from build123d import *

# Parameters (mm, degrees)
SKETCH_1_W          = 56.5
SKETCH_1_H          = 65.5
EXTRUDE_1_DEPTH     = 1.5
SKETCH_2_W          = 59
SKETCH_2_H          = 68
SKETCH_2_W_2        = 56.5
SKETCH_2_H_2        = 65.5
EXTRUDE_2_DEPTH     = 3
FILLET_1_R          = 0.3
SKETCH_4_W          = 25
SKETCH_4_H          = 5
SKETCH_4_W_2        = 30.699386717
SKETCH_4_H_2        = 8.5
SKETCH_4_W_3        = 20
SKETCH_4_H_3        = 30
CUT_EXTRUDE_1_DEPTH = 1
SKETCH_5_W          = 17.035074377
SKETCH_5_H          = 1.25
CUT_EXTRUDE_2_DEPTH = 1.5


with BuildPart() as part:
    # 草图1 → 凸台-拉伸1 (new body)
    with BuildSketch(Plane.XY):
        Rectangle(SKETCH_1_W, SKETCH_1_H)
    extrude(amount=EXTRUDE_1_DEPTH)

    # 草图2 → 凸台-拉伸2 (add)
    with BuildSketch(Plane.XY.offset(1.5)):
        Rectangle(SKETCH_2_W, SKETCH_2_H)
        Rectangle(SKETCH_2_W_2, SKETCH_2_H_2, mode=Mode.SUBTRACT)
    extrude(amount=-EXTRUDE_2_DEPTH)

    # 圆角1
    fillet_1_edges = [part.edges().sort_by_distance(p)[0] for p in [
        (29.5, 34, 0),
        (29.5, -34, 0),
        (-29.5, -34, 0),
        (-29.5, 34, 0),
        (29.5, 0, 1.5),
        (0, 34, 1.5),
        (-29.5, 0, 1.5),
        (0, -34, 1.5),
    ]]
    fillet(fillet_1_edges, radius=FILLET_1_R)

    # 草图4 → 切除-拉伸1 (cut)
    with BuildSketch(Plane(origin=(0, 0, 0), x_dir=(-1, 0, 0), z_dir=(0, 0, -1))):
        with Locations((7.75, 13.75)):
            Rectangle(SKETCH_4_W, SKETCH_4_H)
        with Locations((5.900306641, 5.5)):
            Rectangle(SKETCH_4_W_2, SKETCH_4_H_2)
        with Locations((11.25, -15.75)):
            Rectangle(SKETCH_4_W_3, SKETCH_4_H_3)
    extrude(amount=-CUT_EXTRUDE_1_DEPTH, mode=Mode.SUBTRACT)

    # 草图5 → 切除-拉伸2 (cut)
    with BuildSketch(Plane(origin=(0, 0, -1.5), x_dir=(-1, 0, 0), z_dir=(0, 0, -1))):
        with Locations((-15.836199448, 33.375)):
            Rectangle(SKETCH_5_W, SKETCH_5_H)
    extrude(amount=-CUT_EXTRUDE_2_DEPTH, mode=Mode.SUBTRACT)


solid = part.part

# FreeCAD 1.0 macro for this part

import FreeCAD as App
import Part
import Sketcher
Q = App.Units.Quantity


def edges_at(feature, points):
    """Names of the edges that pass closest to the given points."""
    edges = feature.Shape.Edges
    near = lambda p: min(range(len(edges)), key=lambda i: edges[i].distToShape(Part.Vertex(*p))[0])
    return sorted({f"Edge{near(p) + 1}" for p in points})

doc = App.newDocument("Part")
body = doc.addObject("PartDesign::Body", "Body")

# Sketch on XY plane
sketch1 = body.newObject("Sketcher::SketchObject", "Sketch")
sketch1.AttachmentSupport = (doc.getObject("XY_Plane"), [""])
sketch1.MapMode = "FlatFace"
sketch1.addGeometry(Part.LineSegment(App.Vector(-28.25, 32.75, 0), App.Vector(-28.25, -32.75, 0)), False)
sketch1.addGeometry(Part.LineSegment(App.Vector(-28.25, -32.75, 0), App.Vector(28.25, -32.75, 0)), False)
sketch1.addGeometry(Part.LineSegment(App.Vector(28.25, -32.75, 0), App.Vector(28.25, 32.75, 0)), False)
sketch1.addGeometry(Part.LineSegment(App.Vector(28.25, 32.75, 0), App.Vector(-28.25, 32.75, 0)), False)
sketch1.addConstraint(Sketcher.Constraint("Coincident", 0, 2, 1, 1))
sketch1.addConstraint(Sketcher.Constraint("Coincident", 1, 2, 2, 1))
sketch1.addConstraint(Sketcher.Constraint("Coincident", 2, 2, 3, 1))
sketch1.addConstraint(Sketcher.Constraint("Coincident", 3, 2, 0, 1))
sketch1.addConstraint(Sketcher.Constraint("Vertical", 0))
sketch1.addConstraint(Sketcher.Constraint("Horizontal", 1))
sketch1.addConstraint(Sketcher.Constraint("Vertical", 2))
sketch1.addConstraint(Sketcher.Constraint("Horizontal", 3))
sketch1.addConstraint(Sketcher.Constraint("Symmetric", 0, 2, 2, 2, -1, 1))
sketch1.addConstraint(Sketcher.Constraint("DistanceX", 1, 1, 1, 2, Q("56.5 mm")))
sketch1.addConstraint(Sketcher.Constraint("DistanceY", 0, 2, 0, 1, Q("65.5 mm")))
pad1 = body.newObject("PartDesign::Pad", "Pad")
pad1.Profile = sketch1
pad1.Length = 1.5

# Sketch on XY plane
sketch2 = body.newObject("Sketcher::SketchObject", "Sketch001")
sketch2.AttachmentSupport = (doc.getObject("XY_Plane"), [""])
sketch2.MapMode = "FlatFace"
sketch2.AttachmentOffset = App.Placement(App.Vector(0, 0, 1.5), App.Rotation())
sketch2.addGeometry(Part.LineSegment(App.Vector(-29.5, 34, 0), App.Vector(-29.5, -34, 0)), False)
sketch2.addGeometry(Part.LineSegment(App.Vector(-29.5, -34, 0), App.Vector(29.5, -34, 0)), False)
sketch2.addGeometry(Part.LineSegment(App.Vector(29.5, -34, 0), App.Vector(29.5, 34, 0)), False)
sketch2.addGeometry(Part.LineSegment(App.Vector(29.5, 34, 0), App.Vector(-29.5, 34, 0)), False)
sketch2.addGeometry(Part.LineSegment(App.Vector(28.25, -32.75, 0), App.Vector(-28.25, -32.75, 0)), False)
sketch2.addGeometry(Part.LineSegment(App.Vector(-28.25, -32.75, 0), App.Vector(-28.25, 32.75, 0)), False)
sketch2.addGeometry(Part.LineSegment(App.Vector(-28.25, 32.75, 0), App.Vector(28.25, 32.75, 0)), False)
sketch2.addGeometry(Part.LineSegment(App.Vector(28.25, 32.75, 0), App.Vector(28.25, -32.75, 0)), False)
sketch2.addConstraint(Sketcher.Constraint("Coincident", 0, 2, 1, 1))
sketch2.addConstraint(Sketcher.Constraint("Coincident", 1, 2, 2, 1))
sketch2.addConstraint(Sketcher.Constraint("Coincident", 2, 2, 3, 1))
sketch2.addConstraint(Sketcher.Constraint("Coincident", 3, 2, 0, 1))
sketch2.addConstraint(Sketcher.Constraint("Coincident", 4, 2, 5, 1))
sketch2.addConstraint(Sketcher.Constraint("Coincident", 5, 2, 6, 1))
sketch2.addConstraint(Sketcher.Constraint("Coincident", 6, 2, 7, 1))
sketch2.addConstraint(Sketcher.Constraint("Coincident", 7, 2, 4, 1))
sketch2.addConstraint(Sketcher.Constraint("Vertical", 0))
sketch2.addConstraint(Sketcher.Constraint("Horizontal", 1))
sketch2.addConstraint(Sketcher.Constraint("Vertical", 2))
sketch2.addConstraint(Sketcher.Constraint("Horizontal", 3))
sketch2.addConstraint(Sketcher.Constraint("Horizontal", 4))
sketch2.addConstraint(Sketcher.Constraint("Vertical", 5))
sketch2.addConstraint(Sketcher.Constraint("Horizontal", 6))
sketch2.addConstraint(Sketcher.Constraint("Vertical", 7))
sketch2.addConstraint(Sketcher.Constraint("Symmetric", 0, 2, 2, 2, -1, 1))
sketch2.addConstraint(Sketcher.Constraint("Symmetric", 4, 2, 6, 2, -1, 1))
sketch2.addConstraint(Sketcher.Constraint("DistanceX", 1, 1, 1, 2, Q("59 mm")))
sketch2.addConstraint(Sketcher.Constraint("DistanceY", 0, 2, 0, 1, Q("68 mm")))
sketch2.addConstraint(Sketcher.Constraint("DistanceX", 4, 2, 4, 1, Q("56.5 mm")))
sketch2.addConstraint(Sketcher.Constraint("DistanceY", 5, 1, 5, 2, Q("65.5 mm")))
pad2 = body.newObject("PartDesign::Pad", "Pad001")
pad2.Profile = sketch2
pad2.Length = 3
pad2.Reversed = True
doc.recompute()

fillet = body.newObject("PartDesign::Fillet", "Fillet")
fillet.Base = (pad2, edges_at(pad2, [
    (29.5, 34, 0),
    (29.5, -34, 0),
    (-29.5, -34, 0),
    (-29.5, 34, 0),
    (29.5, 0, 1.5),
    (0, 34, 1.5),
    (-29.5, 0, 1.5),
    (0, -34, 1.5),
]))
fillet.Radius = 0.3

# Sketch on XY plane
sketch3 = body.newObject("Sketcher::SketchObject", "Sketch002")
sketch3.AttachmentSupport = (doc.getObject("XY_Plane"), [""])
sketch3.MapMode = "FlatFace"
sketch3.addGeometry(Part.LineSegment(App.Vector(4.75, 16.25, 0), App.Vector(4.75, 11.25, 0)), False)
sketch3.addGeometry(Part.LineSegment(App.Vector(4.75, 11.25, 0), App.Vector(-20.25, 11.25, 0)), False)
sketch3.addGeometry(Part.LineSegment(App.Vector(-20.25, 11.25, 0), App.Vector(-20.25, 16.25, 0)), False)
sketch3.addGeometry(Part.LineSegment(App.Vector(-20.25, 16.25, 0), App.Vector(4.75, 16.25, 0)), False)
sketch3.addGeometry(Part.LineSegment(App.Vector(9.449387, 9.75, 0), App.Vector(9.449387, 1.25, 0)), False)
sketch3.addGeometry(Part.LineSegment(App.Vector(9.449387, 1.25, 0), App.Vector(-21.25, 1.25, 0)), False)
sketch3.addGeometry(Part.LineSegment(App.Vector(-21.25, 1.25, 0), App.Vector(-21.25, 9.75, 0)), False)
sketch3.addGeometry(Part.LineSegment(App.Vector(-21.25, 9.75, 0), App.Vector(9.449387, 9.75, 0)), False)
sketch3.addGeometry(Part.LineSegment(App.Vector(-1.25, -0.75, 0), App.Vector(-1.25, -30.75, 0)), False)
sketch3.addGeometry(Part.LineSegment(App.Vector(-1.25, -30.75, 0), App.Vector(-21.25, -30.75, 0)), False)
sketch3.addGeometry(Part.LineSegment(App.Vector(-21.25, -30.75, 0), App.Vector(-21.25, -0.75, 0)), False)
sketch3.addGeometry(Part.LineSegment(App.Vector(-21.25, -0.75, 0), App.Vector(-1.25, -0.75, 0)), False)
sketch3.addConstraint(Sketcher.Constraint("Coincident", 0, 2, 1, 1))
sketch3.addConstraint(Sketcher.Constraint("Coincident", 1, 2, 2, 1))
sketch3.addConstraint(Sketcher.Constraint("Coincident", 2, 2, 3, 1))
sketch3.addConstraint(Sketcher.Constraint("Coincident", 3, 2, 0, 1))
sketch3.addConstraint(Sketcher.Constraint("Coincident", 4, 2, 5, 1))
sketch3.addConstraint(Sketcher.Constraint("Coincident", 5, 2, 6, 1))
sketch3.addConstraint(Sketcher.Constraint("Coincident", 6, 2, 7, 1))
sketch3.addConstraint(Sketcher.Constraint("Coincident", 7, 2, 4, 1))
sketch3.addConstraint(Sketcher.Constraint("Coincident", 8, 2, 9, 1))
sketch3.addConstraint(Sketcher.Constraint("Coincident", 9, 2, 10, 1))
sketch3.addConstraint(Sketcher.Constraint("Coincident", 10, 2, 11, 1))
sketch3.addConstraint(Sketcher.Constraint("Coincident", 11, 2, 8, 1))
sketch3.addConstraint(Sketcher.Constraint("Vertical", 0))
sketch3.addConstraint(Sketcher.Constraint("Horizontal", 1))
sketch3.addConstraint(Sketcher.Constraint("Vertical", 2))
sketch3.addConstraint(Sketcher.Constraint("Horizontal", 3))
sketch3.addConstraint(Sketcher.Constraint("Vertical", 4))
sketch3.addConstraint(Sketcher.Constraint("Horizontal", 5))
sketch3.addConstraint(Sketcher.Constraint("Vertical", 6))
sketch3.addConstraint(Sketcher.Constraint("Horizontal", 7))
sketch3.addConstraint(Sketcher.Constraint("Vertical", 8))
sketch3.addConstraint(Sketcher.Constraint("Horizontal", 9))
sketch3.addConstraint(Sketcher.Constraint("Vertical", 10))
sketch3.addConstraint(Sketcher.Constraint("Horizontal", 11))
sketch3.addConstraint(Sketcher.Constraint("Vertical", 6, 2, 9, 2))
sketch3.addConstraint(Sketcher.Constraint("DistanceX", 1, 2, 1, 1, Q("25 mm")))
sketch3.addConstraint(Sketcher.Constraint("DistanceX", 9, 2, 9, 1, Q("20 mm")))
sketch3.addConstraint(Sketcher.Constraint("DistanceY", 0, 2, 0, 1, Q("5 mm")))
sketch3.addConstraint(Sketcher.Constraint("DistanceY", 8, 2, 8, 1, Q("30 mm")))
sketch3.addConstraint(Sketcher.Constraint("DistanceY", 4, 2, 4, 1, Q("8.5 mm")))
sketch3.addConstraint(Sketcher.Constraint("DistanceY", 4, 2, 0, 2, Q("10 mm")))
sketch3.addConstraint(Sketcher.Constraint("DistanceX", 5, 2, 1, 2, Q("1 mm")))
sketch3.addConstraint(Sketcher.Constraint("DistanceY", 8, 2, 4, 2, Q("32 mm")))
sketch3.addConstraint(Sketcher.Constraint("DistanceX", -1, 1, 0, 2, Q("4.75 mm")))
sketch3.addConstraint(Sketcher.Constraint("DistanceY", -1, 1, 0, 2, Q("11.25 mm")))
sketch3.addConstraint(Sketcher.Constraint("DistanceX", 5, 2, 5, 1, Q("30.699387 mm")))
pocket1 = body.newObject("PartDesign::Pocket", "Pocket")
pocket1.Profile = sketch3
pocket1.Length = 1
pocket1.Reversed = True

# Sketch on XY plane
sketch4 = body.newObject("Sketcher::SketchObject", "Sketch003")
sketch4.AttachmentSupport = (doc.getObject("XY_Plane"), [""])
sketch4.MapMode = "FlatFace"
sketch4.AttachmentOffset = App.Placement(App.Vector(0, 0, -1.5), App.Rotation())
sketch4.addGeometry(Part.LineSegment(App.Vector(24.353737, 34, 0), App.Vector(24.353737, 32.75, 0)), False)
sketch4.addGeometry(Part.LineSegment(App.Vector(24.353737, 32.75, 0), App.Vector(7.318662, 32.75, 0)), False)
sketch4.addGeometry(Part.LineSegment(App.Vector(7.318662, 32.75, 0), App.Vector(7.318662, 34, 0)), False)
sketch4.addGeometry(Part.LineSegment(App.Vector(7.318662, 34, 0), App.Vector(24.353737, 34, 0)), False)
sketch4.addConstraint(Sketcher.Constraint("Coincident", 0, 2, 1, 1))
sketch4.addConstraint(Sketcher.Constraint("Coincident", 1, 2, 2, 1))
sketch4.addConstraint(Sketcher.Constraint("Coincident", 2, 2, 3, 1))
sketch4.addConstraint(Sketcher.Constraint("Coincident", 3, 2, 0, 1))
sketch4.addConstraint(Sketcher.Constraint("Vertical", 0))
sketch4.addConstraint(Sketcher.Constraint("Horizontal", 1))
sketch4.addConstraint(Sketcher.Constraint("Vertical", 2))
sketch4.addConstraint(Sketcher.Constraint("Horizontal", 3))
sketch4.addConstraint(Sketcher.Constraint("DistanceY", -1, 1, 2, 2, Q("34 mm")))
sketch4.addConstraint(Sketcher.Constraint("DistanceY", 0, 2, 0, 1, Q("1.25 mm")))
sketch4.addConstraint(Sketcher.Constraint("DistanceX", 1, 2, 1, 1, Q("17.035074 mm")))
sketch4.addConstraint(Sketcher.Constraint("DistanceX", -1, 1, 0, 2, Q("24.353737 mm")))
pocket2 = body.newObject("PartDesign::Pocket", "Pocket001")
pocket2.Profile = sketch4
pocket2.Length = 1.5
pocket2.Reversed = True

doc.recompute()
